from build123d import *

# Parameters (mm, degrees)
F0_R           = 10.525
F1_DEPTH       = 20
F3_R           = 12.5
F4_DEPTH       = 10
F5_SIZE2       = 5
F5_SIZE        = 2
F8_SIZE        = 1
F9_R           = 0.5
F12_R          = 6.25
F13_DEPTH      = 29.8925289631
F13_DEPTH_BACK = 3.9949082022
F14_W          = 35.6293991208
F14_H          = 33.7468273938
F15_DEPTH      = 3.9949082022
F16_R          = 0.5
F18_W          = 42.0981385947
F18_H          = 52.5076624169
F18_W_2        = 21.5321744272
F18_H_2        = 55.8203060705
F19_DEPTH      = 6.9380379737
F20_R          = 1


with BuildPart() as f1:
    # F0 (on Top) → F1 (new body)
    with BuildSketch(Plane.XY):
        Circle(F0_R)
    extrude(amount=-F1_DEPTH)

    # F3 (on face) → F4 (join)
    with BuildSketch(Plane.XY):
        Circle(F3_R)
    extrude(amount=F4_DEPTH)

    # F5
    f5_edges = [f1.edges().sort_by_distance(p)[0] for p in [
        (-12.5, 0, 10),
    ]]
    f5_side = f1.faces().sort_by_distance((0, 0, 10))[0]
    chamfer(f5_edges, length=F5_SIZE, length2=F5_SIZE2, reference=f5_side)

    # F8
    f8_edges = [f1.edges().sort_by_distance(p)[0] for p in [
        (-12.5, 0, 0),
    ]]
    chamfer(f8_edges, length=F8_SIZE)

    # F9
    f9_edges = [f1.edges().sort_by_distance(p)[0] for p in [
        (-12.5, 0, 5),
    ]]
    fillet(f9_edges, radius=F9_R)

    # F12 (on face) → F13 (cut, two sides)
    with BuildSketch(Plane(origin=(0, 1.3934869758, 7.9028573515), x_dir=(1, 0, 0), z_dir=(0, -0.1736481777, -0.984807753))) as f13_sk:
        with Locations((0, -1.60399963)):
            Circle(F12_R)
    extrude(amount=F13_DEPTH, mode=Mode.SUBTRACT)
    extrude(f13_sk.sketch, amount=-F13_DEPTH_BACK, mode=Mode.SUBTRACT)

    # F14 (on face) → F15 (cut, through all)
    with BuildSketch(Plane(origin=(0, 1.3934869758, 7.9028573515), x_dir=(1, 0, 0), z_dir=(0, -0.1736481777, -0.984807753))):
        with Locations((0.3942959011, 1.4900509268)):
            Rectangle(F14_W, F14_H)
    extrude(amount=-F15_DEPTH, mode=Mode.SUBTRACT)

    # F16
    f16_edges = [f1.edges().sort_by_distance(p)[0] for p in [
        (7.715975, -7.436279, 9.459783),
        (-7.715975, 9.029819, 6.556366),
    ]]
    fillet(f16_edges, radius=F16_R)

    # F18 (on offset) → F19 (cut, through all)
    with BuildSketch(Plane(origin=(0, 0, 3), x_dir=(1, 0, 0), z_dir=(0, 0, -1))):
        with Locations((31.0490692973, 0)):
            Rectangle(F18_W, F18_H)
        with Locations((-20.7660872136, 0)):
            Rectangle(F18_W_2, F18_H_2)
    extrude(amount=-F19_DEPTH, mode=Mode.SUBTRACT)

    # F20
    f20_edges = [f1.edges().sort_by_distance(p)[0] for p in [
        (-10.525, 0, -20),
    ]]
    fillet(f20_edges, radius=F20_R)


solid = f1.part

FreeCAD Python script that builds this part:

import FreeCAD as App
import Part
import Sketcher
from FreeCAD import Vector
Q = App.Units.Quantity


def edges_at(feature, points):
    """Names of the edges that pass closest to the given points."""
    edges = feature.Shape.Edges
    near = lambda p: min(range(len(edges)), key=lambda i: edges[i].distToShape(Part.Vertex(*p))[0])
    return sorted({f"Edge{near(p) + 1}" for p in points})


def add_polygon(sketch, points):
    """Adds a closed chain of lines whose ends are joined by coincident constraints."""
    first, n = sketch.GeometryCount, len(points)
    for a, b in zip(points, points[1:] + points[:1]):
        sketch.addGeometry(Part.LineSegment(App.Vector(*a, 0), App.Vector(*b, 0)), False)
    for i in range(n):
        sketch.addConstraint(Sketcher.Constraint("Coincident", first + i, 2, first + (i + 1) % n, 1))

doc = App.newDocument("Part")
body = doc.addObject("PartDesign::Body", "Body")

# Sketch on XY plane
sketch1 = body.newObject("Sketcher::SketchObject", "Sketch")
sketch1.AttachmentSupport = (doc.getObject("XY_Plane"), [""])
sketch1.MapMode = "FlatFace"
sketch1.addGeometry(Part.Circle(Vector(0, 0, 0), Vector(0, 0, 1), 11), False)
sketch1.addConstraint(Sketcher.Constraint("Coincident", 0, 3, -1, 1))
sketch1.addConstraint(Sketcher.Constraint("Diameter", 0, Q("21.05 mm")))
pad1 = body.newObject("PartDesign::Pad", "Pad")
pad1.Profile = sketch1
pad1.Length = 20
pad1.Reversed = True

# Sketch on XY plane
sketch2 = body.newObject("Sketcher::SketchObject", "Sketch001")
sketch2.AttachmentSupport = (doc.getObject("XY_Plane"), [""])
sketch2.MapMode = "FlatFace"
sketch2.addGeometry(Part.Circle(Vector(0, 0, 0), Vector(0, 0, 1), 12), False)
sketch2.addConstraint(Sketcher.Constraint("Coincident", 0, 3, -1, 1))
sketch2.addConstraint(Sketcher.Constraint("Diameter", 0, Q("25 mm")))
pad2 = body.newObject("PartDesign::Pad", "Pad001")
pad2.Profile = sketch2
pad2.Length = 10
doc.recompute()

chamfer = body.newObject("PartDesign::Chamfer", "Chamfer")
chamfer.Base = (pad2, edges_at(pad2, [(-12.5, 0, 10)]))
chamfer.ChamferType = "Two distances"
chamfer.Size = 2
chamfer.Size2 = 5
chamfer.FlipDirection = True
doc.recompute()

chamfer2 = body.newObject("PartDesign::Chamfer", "Chamfer001")
chamfer2.Base = (chamfer, edges_at(chamfer, [(-12.5, 0, 0)]))
chamfer2.Size = 1
doc.recompute()

fillet = body.newObject("PartDesign::Fillet", "Fillet")
fillet.Base = (chamfer2, edges_at(chamfer2, [(-12.5, 0, 5)]))
fillet.Radius = 0.5

# Sketch on an angled plane
sketch3 = body.newObject("Sketcher::SketchObject", "Sketch002")
sketch3.Placement = App.Placement(Vector(0, 1.393487, 7.902857), App.Rotation(Vector(1, 0, 0), Vector(0, -0.984807753, 0.173648178), Vector(0, -0.173648178, -0.984807753), "ZXY"))
sketch3.addGeometry(Part.Circle(Vector(0, -2, 0), Vector(0, 0, 1), 6), False)
sketch3.addConstraint(Sketcher.Constraint("PointOnObject", 0, 3, -2))
sketch3.addConstraint(Sketcher.Constraint("Diameter", 0, Q("12.5 mm")))
sketch3.addConstraint(Sketcher.Constraint("DistanceY", 0, 3, -1, 1, Q("1.604 mm")))
pocket1 = body.newObject("PartDesign::Pocket", "Pocket")
pocket1.Profile = sketch3
pocket1.Type = "ThroughAll"
pocket1.Midplane = True

# Sketch on an angled plane
sketch4 = body.newObject("Sketcher::SketchObject", "Sketch003")
sketch4.Placement = App.Placement(Vector(0, 1.393487, 7.902857), App.Rotation(Vector(1, 0, 0), Vector(0, -0.984807753, 0.173648178), Vector(0, -0.173648178, -0.984807753), "ZXY"))
add_polygon(sketch4, [(-17, 18), (-17, -15), (18, -15), (18, 18)])  # lines 0-3
sketch4.addConstraint(Sketcher.Constraint("Vertical", 0))
sketch4.addConstraint(Sketcher.Constraint("Horizontal", 1))
sketch4.addConstraint(Sketcher.Constraint("Vertical", 2))
sketch4.addConstraint(Sketcher.Constraint("Horizontal", 3))
sketch4.addConstraint(Sketcher.Constraint("DistanceX", 1, 1, 1, 2, Q("35.629399 mm")))
sketch4.addConstraint(Sketcher.Constraint("DistanceY", 0, 2, 0, 1, Q("33.746827 mm")))
sketch4.addConstraint(Sketcher.Constraint("DistanceX", 0, 2, -1, 1, Q("17.420404 mm")))
sketch4.addConstraint(Sketcher.Constraint("DistanceY", 0, 2, -1, 1, Q("15.383363 mm")))
pocket2 = body.newObject("PartDesign::Pocket", "Pocket001")
pocket2.Profile = sketch4
pocket2.Type = "ThroughAll"
doc.recompute()

fillet2 = body.newObject("PartDesign::Fillet", "Fillet001")
fillet2.Base = (pocket2, edges_at(pocket2, [(7.716, -7.436, 9.46), (-7.716, 9.03, 6.556)]))
fillet2.Radius = 0.5

# Sketch on XY plane
sketch5 = body.newObject("Sketcher::SketchObject", "Sketch004")
sketch5.AttachmentSupport = (doc.getObject("XY_Plane"), [""])
sketch5.MapMode = "FlatFace"
sketch5.AttachmentOffset = App.Placement(Vector(0, 0, 3), App.Rotation())
add_polygon(sketch5, [(10, -26), (10, 26), (52, 26), (52, -26)])  # lines 0-3
add_polygon(sketch5, [(-32, -28), (-32, 28), (-10, 28), (-10, -28)])  # lines 4-7
sketch5.addConstraint(Sketcher.Constraint("Vertical", 0))
sketch5.addConstraint(Sketcher.Constraint("Horizontal", 1))
sketch5.addConstraint(Sketcher.Constraint("Vertical", 2))
sketch5.addConstraint(Sketcher.Constraint("Horizontal", 3))
sketch5.addConstraint(Sketcher.Constraint("Vertical", 4))
sketch5.addConstraint(Sketcher.Constraint("Horizontal", 5))
sketch5.addConstraint(Sketcher.Constraint("Vertical", 6))
sketch5.addConstraint(Sketcher.Constraint("Horizontal", 7))
sketch5.addConstraint(Sketcher.Constraint("DistanceX", -1, 1, 0, 2, Q("10 mm")))
sketch5.addConstraint(Sketcher.Constraint("DistanceX", 5, 2, -1, 1, Q("10 mm")))
sketch5.addConstraint(Sketcher.Constraint("DistanceX", 1, 1, 1, 2, Q("42.098139 mm")))
sketch5.addConstraint(Sketcher.Constraint("DistanceX", 5, 1, 5, 2, Q("21.532174 mm")))
sketch5.addConstraint(Sketcher.Constraint("DistanceY", 0, 1, 0, 2, Q("52.507662 mm")))
sketch5.addConstraint(Sketcher.Constraint("DistanceY", 4, 1, 4, 2, Q("55.820306 mm")))
sketch5.addConstraint(Sketcher.Constraint("DistanceY", -1, 1, 0, 2, Q("26.253831 mm")))
sketch5.addConstraint(Sketcher.Constraint("DistanceY", 0, 2, 4, 2, Q("1.656322 mm")))
pocket3 = body.newObject("PartDesign::Pocket", "Pocket002")
pocket3.Profile = sketch5
pocket3.Type = "ThroughAll"
pocket3.Reversed = True
doc.recompute()

fillet3 = body.newObject("PartDesign::Fillet", "Fillet002")
fillet3.Base = (pocket3, edges_at(pocket3, [(-10.525, 0, -20)]))
fillet3.Radius = 1

doc.recompute()
